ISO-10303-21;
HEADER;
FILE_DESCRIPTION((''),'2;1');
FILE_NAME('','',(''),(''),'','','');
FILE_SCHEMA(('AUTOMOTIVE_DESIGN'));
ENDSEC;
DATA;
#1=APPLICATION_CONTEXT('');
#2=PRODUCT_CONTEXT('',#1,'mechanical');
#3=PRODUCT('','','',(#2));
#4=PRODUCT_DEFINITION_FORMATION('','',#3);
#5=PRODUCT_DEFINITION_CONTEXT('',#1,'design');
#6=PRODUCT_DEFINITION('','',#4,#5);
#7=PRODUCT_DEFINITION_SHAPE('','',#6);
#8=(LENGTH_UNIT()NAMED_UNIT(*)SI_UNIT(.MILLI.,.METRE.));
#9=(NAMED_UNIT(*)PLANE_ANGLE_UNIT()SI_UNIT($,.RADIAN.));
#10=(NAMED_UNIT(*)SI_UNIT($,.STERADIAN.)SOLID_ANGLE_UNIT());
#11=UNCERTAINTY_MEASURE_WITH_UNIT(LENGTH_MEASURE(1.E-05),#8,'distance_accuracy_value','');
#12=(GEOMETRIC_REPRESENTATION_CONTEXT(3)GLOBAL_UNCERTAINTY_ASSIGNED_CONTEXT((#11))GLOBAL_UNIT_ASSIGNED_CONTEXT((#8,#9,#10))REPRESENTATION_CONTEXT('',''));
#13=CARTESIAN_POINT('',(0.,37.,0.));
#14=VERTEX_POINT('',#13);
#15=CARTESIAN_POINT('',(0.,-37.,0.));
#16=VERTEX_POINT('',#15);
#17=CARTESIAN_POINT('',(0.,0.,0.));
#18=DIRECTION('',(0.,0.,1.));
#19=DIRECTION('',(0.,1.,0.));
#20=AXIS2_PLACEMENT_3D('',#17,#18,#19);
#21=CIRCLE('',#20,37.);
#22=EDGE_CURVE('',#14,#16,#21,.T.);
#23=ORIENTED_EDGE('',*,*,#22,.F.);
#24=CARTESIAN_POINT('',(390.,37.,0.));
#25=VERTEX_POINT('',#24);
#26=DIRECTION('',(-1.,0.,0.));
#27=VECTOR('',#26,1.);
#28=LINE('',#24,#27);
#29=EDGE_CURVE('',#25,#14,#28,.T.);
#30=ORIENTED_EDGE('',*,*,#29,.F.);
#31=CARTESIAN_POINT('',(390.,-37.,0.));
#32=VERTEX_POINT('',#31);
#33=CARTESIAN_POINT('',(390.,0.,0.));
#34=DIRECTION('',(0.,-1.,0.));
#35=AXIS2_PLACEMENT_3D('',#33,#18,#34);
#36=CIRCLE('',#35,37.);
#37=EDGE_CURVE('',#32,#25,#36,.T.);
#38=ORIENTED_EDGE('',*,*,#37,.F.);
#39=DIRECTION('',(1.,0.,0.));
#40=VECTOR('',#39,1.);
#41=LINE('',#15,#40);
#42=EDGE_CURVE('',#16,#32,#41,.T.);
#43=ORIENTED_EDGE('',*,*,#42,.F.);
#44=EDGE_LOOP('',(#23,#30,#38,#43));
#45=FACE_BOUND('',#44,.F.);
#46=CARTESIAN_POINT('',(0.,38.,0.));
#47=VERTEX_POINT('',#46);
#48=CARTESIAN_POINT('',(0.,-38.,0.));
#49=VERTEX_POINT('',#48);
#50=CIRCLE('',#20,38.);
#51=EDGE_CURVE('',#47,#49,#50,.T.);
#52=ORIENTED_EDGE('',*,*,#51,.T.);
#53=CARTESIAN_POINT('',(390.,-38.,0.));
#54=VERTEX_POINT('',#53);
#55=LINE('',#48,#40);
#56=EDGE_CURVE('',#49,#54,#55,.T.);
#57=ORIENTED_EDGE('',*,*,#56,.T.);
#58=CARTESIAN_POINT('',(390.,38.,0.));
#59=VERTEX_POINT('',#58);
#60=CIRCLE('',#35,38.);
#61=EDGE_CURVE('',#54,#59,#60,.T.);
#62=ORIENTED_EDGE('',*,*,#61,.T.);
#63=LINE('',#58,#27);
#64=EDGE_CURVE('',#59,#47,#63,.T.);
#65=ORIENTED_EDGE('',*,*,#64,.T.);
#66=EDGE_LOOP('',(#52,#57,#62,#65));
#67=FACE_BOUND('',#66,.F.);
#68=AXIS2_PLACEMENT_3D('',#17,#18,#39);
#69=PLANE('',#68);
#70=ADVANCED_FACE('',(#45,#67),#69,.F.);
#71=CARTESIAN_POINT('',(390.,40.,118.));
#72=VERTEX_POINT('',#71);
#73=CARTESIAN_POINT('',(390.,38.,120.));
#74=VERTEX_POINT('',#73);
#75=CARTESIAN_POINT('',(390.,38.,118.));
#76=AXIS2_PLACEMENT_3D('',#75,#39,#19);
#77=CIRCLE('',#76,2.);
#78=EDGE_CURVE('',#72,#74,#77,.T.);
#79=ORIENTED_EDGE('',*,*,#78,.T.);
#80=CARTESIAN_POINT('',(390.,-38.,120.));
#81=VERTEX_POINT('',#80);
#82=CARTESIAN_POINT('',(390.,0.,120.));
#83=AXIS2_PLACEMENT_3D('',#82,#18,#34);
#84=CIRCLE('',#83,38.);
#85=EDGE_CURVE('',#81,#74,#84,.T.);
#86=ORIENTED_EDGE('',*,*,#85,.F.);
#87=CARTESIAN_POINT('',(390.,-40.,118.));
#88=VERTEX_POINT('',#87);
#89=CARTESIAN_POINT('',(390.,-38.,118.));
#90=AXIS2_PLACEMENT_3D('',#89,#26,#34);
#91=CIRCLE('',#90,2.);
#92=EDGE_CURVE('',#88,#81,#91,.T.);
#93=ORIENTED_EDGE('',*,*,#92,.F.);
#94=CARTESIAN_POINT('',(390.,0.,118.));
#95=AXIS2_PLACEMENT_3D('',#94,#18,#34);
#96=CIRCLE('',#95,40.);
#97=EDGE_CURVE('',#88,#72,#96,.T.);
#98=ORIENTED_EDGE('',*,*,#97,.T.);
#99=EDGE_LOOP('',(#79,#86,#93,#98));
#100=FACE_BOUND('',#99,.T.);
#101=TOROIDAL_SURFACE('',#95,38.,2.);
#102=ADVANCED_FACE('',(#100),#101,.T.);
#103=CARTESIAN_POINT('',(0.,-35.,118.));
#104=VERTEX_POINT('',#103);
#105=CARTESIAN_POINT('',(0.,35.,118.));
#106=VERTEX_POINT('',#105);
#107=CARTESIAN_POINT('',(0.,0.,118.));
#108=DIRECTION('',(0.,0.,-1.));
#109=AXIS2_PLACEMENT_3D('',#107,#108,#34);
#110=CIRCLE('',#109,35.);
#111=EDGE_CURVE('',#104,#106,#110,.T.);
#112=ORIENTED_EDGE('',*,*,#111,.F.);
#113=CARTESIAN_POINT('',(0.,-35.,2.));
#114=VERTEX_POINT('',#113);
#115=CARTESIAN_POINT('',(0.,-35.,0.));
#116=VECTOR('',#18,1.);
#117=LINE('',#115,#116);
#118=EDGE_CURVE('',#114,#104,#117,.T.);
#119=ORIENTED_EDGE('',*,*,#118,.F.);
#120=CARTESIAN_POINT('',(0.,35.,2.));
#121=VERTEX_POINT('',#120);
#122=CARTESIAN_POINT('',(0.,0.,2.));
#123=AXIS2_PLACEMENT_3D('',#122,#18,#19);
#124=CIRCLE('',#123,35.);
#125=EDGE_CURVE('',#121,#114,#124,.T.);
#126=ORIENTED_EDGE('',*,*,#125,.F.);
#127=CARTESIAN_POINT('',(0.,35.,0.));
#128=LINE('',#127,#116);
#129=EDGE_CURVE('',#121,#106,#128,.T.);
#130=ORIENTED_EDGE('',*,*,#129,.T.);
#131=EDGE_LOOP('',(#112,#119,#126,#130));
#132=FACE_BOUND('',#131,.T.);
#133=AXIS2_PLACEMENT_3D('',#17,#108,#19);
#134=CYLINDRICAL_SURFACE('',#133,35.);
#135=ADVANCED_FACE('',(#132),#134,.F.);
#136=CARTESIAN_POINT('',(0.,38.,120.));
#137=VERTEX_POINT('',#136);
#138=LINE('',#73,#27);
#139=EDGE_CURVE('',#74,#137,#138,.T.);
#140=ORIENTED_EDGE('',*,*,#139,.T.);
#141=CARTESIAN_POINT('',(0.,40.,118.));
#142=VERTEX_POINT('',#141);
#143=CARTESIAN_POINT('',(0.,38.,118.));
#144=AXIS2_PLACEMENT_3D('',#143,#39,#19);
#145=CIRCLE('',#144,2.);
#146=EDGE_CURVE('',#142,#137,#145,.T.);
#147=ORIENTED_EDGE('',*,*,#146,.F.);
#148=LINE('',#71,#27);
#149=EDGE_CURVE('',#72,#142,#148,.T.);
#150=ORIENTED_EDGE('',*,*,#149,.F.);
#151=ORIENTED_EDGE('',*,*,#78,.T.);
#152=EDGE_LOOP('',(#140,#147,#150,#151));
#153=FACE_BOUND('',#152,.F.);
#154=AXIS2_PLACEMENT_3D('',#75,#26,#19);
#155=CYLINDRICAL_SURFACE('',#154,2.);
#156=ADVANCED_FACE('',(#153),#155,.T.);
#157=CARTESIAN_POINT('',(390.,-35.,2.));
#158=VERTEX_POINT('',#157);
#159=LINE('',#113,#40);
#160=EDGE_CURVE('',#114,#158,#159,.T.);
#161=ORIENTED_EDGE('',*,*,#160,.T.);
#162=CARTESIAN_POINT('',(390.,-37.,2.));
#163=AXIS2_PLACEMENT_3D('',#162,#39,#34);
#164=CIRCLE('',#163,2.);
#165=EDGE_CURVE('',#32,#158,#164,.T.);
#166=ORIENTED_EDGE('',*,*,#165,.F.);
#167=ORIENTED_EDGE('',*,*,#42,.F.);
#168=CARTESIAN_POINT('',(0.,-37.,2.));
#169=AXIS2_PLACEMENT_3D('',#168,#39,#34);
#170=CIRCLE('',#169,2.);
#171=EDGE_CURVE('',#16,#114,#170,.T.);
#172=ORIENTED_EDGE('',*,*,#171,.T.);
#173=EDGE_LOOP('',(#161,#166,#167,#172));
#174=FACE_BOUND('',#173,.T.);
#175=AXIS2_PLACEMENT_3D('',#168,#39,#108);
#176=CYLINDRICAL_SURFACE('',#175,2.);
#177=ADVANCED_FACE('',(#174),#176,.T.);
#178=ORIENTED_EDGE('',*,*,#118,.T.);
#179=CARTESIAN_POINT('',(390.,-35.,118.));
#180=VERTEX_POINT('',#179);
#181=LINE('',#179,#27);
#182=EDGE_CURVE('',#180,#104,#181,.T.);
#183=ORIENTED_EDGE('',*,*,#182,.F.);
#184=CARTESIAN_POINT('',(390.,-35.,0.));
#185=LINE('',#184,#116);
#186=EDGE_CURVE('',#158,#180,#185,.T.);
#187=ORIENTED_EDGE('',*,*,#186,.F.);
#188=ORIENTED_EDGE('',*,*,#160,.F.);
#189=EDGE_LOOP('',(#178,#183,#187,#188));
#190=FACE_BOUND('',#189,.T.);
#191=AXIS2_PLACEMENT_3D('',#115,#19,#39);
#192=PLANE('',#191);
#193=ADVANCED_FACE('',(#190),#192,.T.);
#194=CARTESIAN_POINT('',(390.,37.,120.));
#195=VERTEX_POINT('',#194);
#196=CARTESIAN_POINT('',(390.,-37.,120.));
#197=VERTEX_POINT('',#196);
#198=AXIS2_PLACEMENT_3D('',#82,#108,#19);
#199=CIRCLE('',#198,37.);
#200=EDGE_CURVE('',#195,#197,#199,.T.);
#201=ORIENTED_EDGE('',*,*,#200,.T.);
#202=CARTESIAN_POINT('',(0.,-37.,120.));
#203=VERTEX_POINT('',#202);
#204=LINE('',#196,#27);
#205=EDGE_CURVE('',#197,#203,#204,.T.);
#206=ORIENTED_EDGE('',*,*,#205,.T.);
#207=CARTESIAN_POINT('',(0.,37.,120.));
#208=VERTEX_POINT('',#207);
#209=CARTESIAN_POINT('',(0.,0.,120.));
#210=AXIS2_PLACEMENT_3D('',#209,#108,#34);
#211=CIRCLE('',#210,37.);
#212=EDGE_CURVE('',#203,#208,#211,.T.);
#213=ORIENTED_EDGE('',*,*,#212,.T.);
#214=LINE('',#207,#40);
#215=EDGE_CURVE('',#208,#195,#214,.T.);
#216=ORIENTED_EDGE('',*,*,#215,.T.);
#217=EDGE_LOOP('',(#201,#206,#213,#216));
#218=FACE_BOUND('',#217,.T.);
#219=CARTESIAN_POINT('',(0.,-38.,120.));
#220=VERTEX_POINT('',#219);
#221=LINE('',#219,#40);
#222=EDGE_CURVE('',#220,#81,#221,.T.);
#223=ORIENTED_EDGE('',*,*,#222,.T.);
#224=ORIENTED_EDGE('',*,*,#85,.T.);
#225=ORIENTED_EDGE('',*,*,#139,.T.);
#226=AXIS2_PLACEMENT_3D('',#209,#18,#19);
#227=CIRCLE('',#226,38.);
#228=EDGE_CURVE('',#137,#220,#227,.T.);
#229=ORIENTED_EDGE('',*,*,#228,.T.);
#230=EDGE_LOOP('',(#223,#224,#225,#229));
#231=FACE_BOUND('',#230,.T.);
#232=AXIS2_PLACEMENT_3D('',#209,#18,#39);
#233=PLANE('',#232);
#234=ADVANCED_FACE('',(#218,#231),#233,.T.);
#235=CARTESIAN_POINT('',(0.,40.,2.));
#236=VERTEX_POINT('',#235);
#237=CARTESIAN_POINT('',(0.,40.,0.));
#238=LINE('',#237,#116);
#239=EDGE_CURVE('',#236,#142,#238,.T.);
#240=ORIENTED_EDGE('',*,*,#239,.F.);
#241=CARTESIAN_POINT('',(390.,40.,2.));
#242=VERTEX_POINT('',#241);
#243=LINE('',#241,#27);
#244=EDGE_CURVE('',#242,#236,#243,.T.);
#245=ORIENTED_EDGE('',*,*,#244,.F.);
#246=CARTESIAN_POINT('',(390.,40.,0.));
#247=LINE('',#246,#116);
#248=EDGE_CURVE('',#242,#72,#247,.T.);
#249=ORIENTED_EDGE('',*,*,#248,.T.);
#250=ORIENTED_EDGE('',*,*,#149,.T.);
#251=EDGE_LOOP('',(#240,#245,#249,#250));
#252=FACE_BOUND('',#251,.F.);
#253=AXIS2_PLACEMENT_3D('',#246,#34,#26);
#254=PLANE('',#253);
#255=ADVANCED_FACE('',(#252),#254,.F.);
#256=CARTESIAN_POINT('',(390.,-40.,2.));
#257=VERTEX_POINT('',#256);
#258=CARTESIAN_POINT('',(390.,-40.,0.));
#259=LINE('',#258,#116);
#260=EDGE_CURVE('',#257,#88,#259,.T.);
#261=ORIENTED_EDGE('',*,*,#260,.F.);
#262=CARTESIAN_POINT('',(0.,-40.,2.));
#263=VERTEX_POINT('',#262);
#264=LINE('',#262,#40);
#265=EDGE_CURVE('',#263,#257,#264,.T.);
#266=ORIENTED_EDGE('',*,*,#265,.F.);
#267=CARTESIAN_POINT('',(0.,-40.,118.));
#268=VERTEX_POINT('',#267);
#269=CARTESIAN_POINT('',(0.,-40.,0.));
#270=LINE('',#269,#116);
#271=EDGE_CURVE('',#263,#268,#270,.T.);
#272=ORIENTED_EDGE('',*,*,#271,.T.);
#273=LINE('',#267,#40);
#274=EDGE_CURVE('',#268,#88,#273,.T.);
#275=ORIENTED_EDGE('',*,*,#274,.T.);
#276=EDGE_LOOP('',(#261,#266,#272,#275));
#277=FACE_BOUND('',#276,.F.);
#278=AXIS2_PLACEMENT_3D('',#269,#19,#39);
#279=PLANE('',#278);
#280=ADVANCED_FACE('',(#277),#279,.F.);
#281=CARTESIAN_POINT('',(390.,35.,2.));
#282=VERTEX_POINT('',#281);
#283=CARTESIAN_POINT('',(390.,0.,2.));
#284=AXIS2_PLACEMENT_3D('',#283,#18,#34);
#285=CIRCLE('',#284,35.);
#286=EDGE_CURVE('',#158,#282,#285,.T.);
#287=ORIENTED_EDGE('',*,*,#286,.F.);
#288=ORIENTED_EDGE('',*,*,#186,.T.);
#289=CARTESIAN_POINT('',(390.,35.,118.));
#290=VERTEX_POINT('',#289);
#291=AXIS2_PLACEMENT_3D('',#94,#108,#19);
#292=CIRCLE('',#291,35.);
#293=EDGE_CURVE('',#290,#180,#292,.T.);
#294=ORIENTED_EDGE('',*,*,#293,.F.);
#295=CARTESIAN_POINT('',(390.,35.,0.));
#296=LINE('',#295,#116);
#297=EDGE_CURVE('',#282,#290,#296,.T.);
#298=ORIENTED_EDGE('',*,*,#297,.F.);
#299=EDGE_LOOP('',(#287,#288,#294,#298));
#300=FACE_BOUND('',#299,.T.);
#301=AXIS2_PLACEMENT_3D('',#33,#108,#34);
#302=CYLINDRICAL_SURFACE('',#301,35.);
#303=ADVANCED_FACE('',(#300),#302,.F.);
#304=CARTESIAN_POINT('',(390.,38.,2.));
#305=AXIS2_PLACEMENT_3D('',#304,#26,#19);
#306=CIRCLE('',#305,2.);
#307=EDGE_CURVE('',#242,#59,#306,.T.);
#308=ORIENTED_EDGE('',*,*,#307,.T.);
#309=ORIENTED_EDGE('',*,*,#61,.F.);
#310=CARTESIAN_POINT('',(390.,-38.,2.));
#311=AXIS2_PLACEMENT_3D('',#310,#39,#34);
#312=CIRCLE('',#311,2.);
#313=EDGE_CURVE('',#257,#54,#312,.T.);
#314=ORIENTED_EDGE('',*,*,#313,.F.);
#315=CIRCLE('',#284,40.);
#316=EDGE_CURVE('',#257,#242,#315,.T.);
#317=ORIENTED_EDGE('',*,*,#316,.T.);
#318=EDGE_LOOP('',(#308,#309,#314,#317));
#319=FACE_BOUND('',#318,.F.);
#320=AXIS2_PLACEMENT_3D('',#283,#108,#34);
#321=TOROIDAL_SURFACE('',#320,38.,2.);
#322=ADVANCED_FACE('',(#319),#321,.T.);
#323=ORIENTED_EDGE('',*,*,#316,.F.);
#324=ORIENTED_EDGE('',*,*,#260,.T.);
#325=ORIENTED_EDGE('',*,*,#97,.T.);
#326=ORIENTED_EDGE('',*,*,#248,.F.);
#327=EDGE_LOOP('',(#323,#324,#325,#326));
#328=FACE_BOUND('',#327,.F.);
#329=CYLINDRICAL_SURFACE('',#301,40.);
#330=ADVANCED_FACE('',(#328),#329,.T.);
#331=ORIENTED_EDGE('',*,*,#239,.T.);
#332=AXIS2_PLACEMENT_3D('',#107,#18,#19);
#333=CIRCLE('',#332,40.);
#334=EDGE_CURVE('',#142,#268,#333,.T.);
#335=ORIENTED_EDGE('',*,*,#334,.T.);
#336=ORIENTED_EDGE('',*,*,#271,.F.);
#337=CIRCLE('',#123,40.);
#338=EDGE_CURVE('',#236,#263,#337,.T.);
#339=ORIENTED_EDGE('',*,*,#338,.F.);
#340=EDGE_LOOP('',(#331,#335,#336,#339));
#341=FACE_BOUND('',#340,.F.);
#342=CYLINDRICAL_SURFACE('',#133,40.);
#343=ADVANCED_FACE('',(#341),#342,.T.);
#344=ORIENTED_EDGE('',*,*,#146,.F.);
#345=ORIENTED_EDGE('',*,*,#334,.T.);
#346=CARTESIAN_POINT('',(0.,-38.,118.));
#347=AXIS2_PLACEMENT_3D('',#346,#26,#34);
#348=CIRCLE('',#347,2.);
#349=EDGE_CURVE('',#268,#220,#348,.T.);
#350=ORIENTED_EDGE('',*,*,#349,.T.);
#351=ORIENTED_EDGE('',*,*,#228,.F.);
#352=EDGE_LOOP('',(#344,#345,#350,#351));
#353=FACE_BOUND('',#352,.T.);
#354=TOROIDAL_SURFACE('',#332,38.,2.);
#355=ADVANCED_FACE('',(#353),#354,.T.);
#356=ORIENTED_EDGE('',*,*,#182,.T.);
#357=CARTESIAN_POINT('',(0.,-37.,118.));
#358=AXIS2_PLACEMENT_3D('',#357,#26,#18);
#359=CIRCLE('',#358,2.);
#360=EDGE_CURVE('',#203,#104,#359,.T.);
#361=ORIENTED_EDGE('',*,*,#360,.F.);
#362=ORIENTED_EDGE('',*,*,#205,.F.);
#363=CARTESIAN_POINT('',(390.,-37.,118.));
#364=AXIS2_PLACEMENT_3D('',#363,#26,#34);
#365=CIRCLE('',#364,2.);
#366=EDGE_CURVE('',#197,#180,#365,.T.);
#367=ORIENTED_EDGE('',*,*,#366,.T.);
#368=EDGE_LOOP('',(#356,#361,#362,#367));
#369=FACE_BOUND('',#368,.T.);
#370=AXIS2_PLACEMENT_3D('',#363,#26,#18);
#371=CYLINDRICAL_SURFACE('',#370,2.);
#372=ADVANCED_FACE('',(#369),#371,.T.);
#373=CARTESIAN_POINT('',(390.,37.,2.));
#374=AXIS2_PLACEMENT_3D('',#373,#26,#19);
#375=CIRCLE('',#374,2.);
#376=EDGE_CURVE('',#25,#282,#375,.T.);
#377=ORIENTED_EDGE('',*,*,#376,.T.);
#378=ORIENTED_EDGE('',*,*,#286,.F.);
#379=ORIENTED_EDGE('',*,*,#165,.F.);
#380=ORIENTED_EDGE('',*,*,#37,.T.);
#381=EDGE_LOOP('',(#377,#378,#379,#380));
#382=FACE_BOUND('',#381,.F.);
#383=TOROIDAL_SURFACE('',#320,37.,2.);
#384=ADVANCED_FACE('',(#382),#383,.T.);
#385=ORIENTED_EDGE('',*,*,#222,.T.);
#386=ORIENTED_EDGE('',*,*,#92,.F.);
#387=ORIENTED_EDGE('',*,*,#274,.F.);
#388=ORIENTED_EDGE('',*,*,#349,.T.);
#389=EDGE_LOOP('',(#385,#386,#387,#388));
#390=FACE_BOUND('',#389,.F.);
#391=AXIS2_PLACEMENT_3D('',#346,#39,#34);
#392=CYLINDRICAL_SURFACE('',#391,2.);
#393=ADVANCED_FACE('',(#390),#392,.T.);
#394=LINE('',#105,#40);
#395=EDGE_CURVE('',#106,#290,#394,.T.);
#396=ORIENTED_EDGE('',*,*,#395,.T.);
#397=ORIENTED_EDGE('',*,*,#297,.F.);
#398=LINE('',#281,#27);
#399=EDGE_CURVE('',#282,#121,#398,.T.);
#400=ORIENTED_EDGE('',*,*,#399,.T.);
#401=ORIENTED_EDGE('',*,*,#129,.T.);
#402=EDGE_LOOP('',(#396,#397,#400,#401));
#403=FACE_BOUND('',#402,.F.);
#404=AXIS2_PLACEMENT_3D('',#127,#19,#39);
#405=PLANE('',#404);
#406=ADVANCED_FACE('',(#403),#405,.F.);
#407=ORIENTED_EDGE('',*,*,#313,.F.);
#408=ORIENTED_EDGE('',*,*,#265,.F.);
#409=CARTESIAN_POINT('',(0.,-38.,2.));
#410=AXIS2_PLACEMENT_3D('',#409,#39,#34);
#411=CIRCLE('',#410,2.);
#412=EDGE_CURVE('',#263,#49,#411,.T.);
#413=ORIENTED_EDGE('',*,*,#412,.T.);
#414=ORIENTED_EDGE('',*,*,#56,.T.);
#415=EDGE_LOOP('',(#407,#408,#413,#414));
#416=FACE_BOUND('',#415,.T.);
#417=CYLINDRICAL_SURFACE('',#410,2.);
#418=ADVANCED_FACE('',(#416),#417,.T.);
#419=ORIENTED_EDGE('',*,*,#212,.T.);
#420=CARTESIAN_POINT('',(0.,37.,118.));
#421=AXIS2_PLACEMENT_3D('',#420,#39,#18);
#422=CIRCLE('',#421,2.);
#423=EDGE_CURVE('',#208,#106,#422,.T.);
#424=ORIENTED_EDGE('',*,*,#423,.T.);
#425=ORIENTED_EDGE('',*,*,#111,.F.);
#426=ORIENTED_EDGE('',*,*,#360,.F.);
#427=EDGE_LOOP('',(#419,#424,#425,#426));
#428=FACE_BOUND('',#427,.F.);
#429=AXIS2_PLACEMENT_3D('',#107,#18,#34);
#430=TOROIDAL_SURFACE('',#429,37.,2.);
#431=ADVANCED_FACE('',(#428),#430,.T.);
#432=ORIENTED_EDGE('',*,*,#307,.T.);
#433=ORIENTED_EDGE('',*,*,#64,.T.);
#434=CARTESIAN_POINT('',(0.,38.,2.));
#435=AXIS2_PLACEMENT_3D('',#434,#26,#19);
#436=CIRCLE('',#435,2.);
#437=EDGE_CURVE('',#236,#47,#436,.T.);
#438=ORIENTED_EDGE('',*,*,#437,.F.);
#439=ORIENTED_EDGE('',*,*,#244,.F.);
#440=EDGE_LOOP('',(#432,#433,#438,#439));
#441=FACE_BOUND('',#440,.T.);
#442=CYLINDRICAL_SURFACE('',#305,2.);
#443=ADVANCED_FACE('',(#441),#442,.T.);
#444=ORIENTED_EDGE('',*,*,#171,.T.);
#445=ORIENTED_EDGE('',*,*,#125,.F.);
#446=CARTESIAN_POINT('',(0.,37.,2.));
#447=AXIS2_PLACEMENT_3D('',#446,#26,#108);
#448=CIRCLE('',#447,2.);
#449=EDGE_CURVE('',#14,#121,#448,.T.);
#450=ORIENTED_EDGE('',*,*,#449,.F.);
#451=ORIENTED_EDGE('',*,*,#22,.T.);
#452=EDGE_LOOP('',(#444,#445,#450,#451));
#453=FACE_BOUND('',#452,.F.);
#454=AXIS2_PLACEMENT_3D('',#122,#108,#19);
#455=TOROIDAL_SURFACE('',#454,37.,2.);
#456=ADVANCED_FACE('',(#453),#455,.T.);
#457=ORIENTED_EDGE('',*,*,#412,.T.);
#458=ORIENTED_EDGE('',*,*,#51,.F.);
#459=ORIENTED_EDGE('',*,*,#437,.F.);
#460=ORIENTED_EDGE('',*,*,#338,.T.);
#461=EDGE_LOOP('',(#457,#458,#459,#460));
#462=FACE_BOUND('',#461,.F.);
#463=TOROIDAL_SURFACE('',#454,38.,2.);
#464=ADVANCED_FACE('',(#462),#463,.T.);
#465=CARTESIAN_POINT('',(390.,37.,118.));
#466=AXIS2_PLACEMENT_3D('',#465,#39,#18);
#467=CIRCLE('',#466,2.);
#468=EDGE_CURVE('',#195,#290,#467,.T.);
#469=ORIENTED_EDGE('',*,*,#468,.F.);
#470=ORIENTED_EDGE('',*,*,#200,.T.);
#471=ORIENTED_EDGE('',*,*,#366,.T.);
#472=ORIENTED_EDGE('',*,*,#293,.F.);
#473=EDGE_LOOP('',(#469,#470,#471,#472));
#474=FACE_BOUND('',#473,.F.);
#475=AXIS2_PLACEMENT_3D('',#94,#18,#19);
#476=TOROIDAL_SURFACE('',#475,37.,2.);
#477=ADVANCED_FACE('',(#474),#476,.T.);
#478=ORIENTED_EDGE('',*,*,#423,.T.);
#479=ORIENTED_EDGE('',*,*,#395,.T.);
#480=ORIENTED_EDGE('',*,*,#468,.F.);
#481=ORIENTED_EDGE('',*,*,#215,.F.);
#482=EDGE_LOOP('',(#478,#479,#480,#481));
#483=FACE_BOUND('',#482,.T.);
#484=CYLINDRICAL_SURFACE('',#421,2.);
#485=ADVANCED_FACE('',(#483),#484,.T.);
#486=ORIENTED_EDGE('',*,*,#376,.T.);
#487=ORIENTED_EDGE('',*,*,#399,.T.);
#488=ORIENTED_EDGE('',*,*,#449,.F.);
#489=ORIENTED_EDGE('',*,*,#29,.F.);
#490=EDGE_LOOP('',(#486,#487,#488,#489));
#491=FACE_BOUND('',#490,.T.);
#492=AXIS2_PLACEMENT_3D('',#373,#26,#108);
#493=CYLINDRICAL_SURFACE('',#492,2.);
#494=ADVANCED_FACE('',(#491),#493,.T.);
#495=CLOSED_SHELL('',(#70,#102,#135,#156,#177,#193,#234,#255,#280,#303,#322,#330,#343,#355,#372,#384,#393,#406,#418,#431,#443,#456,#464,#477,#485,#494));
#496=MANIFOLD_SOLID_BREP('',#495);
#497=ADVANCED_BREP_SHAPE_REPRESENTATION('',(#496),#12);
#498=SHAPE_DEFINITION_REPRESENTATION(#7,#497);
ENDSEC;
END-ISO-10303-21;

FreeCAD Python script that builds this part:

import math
import FreeCAD as App
import Part
import Sketcher
Q = App.Units.Quantity


def edges_at(feature, points):
    """Names of the edges that pass closest to the given points."""
    edges = feature.Shape.Edges
    near = lambda p: min(range(len(edges)), key=lambda i: edges[i].distToShape(Part.Vertex(*p))[0])
    return sorted({f"Edge{near(p) + 1}" for p in points})

doc = App.newDocument("Part")
body = doc.addObject("PartDesign::Body", "Body")

# Sketch on XY plane
sketch1 = doc.addObject("Sketcher::SketchObject", "Sketch")
body.addObject(sketch1)
sketch1.AttachmentSupport = (doc.XY_Plane, [""])
sketch1.MapMode = "FlatFace"
sketch1.addGeometry([
    Part.ArcOfCircle(Part.Circle(App.Vector(390, 0, 0), App.Vector(0, 0, 1), 40), math.radians(-90), math.radians(90)),  # 0
    Part.LineSegment(App.Vector(390, 40, 0), App.Vector(0, 40, 0)),  # 1
    Part.ArcOfCircle(Part.Circle(App.Vector(0, 0, 0), App.Vector(0, 0, 1), 40), math.radians(90), math.radians(270)),  # 2
    Part.LineSegment(App.Vector(0, -40, 0), App.Vector(390, -40, 0)),  # 3
    Part.ArcOfCircle(Part.Circle(App.Vector(0, 0, 0), App.Vector(0, 0, 1), 35), math.radians(90), math.radians(270)),  # 4
    Part.LineSegment(App.Vector(0, 35, 0), App.Vector(390, 35, 0)),  # 5
    Part.ArcOfCircle(Part.Circle(App.Vector(390, 0, 0), App.Vector(0, 0, 1), 35), math.radians(-90), math.radians(90)),  # 6
    Part.LineSegment(App.Vector(390, -35, 0), App.Vector(0, -35, 0)),  # 7
], False)
sketch1.addConstraint([
    Sketcher.Constraint("Tangent", 0, 2, 1, 1),
    Sketcher.Constraint("Tangent", 1, 2, 2, 1),
    Sketcher.Constraint("Tangent", 2, 2, 3, 1),
    Sketcher.Constraint("Tangent", 3, 2, 0, 1),
    Sketcher.Constraint("Tangent", 4, 1, 5, 1),
    Sketcher.Constraint("Tangent", 5, 2, 6, 2),
    Sketcher.Constraint("Tangent", 6, 1, 7, 1),
    Sketcher.Constraint("Tangent", 7, 2, 4, 2),
    Sketcher.Constraint("Horizontal", 1),
    Sketcher.Constraint("Horizontal", 3),
    Sketcher.Constraint("Horizontal", 5),
    Sketcher.Constraint("Horizontal", 7),
    Sketcher.Constraint("Coincident", 2, 3, -1, 1),
    Sketcher.Constraint("Coincident", 4, 3, -1, 1),
    Sketcher.Constraint("Vertical", 6, 3, 0, 2),
    Sketcher.Constraint("Radius", 4, Q("35 mm")),
    Sketcher.Constraint("DistanceX", 1, 2, 1, 1, Q("390 mm")),
    Sketcher.Constraint("Radius", 0, Q("40 mm")),
])
pad1 = doc.addObject("PartDesign::Pad", "Pad")
body.addObject(pad1)
pad1.Profile = sketch1
pad1.Length = 120
doc.recompute()

fillet = doc.addObject("PartDesign::Fillet", "Fillet")
body.addObject(fillet)
fillet.Base = (pad1, edges_at(pad1, [
    (-40, 0, 120),
    (195, -40, 120),
    (430, 0, 120),
    (195, 40, 120),
]))
fillet.Radius = 2
doc.recompute()

fillet2 = doc.addObject("PartDesign::Fillet", "Fillet001")
body.addObject(fillet2)
fillet2.Base = (fillet, edges_at(fillet, [
    (195, 35, 120),
    (425, 0, 120),
    (195, -35, 120),
    (-35, 0, 120),
]))
fillet2.Radius = 2
doc.recompute()

fillet3 = doc.addObject("PartDesign::Fillet", "Fillet002")
body.addObject(fillet3)
fillet3.Base = (fillet2, edges_at(fillet2, [
    (-40, 0, 0),
    (195, -40, 0),
    (430, 0, 0),
    (195, 40, 0),
]))
fillet3.Radius = 2
doc.recompute()

fillet4 = doc.addObject("PartDesign::Fillet", "Fillet003")
body.addObject(fillet4)
fillet4.Base = (fillet3, edges_at(fillet3, [
    (425, 0, 0),
    (195, -35, 0),
    (-35, 0, 0),
    (195, 35, 0),
]))
fillet4.Radius = 2

doc.recompute()
